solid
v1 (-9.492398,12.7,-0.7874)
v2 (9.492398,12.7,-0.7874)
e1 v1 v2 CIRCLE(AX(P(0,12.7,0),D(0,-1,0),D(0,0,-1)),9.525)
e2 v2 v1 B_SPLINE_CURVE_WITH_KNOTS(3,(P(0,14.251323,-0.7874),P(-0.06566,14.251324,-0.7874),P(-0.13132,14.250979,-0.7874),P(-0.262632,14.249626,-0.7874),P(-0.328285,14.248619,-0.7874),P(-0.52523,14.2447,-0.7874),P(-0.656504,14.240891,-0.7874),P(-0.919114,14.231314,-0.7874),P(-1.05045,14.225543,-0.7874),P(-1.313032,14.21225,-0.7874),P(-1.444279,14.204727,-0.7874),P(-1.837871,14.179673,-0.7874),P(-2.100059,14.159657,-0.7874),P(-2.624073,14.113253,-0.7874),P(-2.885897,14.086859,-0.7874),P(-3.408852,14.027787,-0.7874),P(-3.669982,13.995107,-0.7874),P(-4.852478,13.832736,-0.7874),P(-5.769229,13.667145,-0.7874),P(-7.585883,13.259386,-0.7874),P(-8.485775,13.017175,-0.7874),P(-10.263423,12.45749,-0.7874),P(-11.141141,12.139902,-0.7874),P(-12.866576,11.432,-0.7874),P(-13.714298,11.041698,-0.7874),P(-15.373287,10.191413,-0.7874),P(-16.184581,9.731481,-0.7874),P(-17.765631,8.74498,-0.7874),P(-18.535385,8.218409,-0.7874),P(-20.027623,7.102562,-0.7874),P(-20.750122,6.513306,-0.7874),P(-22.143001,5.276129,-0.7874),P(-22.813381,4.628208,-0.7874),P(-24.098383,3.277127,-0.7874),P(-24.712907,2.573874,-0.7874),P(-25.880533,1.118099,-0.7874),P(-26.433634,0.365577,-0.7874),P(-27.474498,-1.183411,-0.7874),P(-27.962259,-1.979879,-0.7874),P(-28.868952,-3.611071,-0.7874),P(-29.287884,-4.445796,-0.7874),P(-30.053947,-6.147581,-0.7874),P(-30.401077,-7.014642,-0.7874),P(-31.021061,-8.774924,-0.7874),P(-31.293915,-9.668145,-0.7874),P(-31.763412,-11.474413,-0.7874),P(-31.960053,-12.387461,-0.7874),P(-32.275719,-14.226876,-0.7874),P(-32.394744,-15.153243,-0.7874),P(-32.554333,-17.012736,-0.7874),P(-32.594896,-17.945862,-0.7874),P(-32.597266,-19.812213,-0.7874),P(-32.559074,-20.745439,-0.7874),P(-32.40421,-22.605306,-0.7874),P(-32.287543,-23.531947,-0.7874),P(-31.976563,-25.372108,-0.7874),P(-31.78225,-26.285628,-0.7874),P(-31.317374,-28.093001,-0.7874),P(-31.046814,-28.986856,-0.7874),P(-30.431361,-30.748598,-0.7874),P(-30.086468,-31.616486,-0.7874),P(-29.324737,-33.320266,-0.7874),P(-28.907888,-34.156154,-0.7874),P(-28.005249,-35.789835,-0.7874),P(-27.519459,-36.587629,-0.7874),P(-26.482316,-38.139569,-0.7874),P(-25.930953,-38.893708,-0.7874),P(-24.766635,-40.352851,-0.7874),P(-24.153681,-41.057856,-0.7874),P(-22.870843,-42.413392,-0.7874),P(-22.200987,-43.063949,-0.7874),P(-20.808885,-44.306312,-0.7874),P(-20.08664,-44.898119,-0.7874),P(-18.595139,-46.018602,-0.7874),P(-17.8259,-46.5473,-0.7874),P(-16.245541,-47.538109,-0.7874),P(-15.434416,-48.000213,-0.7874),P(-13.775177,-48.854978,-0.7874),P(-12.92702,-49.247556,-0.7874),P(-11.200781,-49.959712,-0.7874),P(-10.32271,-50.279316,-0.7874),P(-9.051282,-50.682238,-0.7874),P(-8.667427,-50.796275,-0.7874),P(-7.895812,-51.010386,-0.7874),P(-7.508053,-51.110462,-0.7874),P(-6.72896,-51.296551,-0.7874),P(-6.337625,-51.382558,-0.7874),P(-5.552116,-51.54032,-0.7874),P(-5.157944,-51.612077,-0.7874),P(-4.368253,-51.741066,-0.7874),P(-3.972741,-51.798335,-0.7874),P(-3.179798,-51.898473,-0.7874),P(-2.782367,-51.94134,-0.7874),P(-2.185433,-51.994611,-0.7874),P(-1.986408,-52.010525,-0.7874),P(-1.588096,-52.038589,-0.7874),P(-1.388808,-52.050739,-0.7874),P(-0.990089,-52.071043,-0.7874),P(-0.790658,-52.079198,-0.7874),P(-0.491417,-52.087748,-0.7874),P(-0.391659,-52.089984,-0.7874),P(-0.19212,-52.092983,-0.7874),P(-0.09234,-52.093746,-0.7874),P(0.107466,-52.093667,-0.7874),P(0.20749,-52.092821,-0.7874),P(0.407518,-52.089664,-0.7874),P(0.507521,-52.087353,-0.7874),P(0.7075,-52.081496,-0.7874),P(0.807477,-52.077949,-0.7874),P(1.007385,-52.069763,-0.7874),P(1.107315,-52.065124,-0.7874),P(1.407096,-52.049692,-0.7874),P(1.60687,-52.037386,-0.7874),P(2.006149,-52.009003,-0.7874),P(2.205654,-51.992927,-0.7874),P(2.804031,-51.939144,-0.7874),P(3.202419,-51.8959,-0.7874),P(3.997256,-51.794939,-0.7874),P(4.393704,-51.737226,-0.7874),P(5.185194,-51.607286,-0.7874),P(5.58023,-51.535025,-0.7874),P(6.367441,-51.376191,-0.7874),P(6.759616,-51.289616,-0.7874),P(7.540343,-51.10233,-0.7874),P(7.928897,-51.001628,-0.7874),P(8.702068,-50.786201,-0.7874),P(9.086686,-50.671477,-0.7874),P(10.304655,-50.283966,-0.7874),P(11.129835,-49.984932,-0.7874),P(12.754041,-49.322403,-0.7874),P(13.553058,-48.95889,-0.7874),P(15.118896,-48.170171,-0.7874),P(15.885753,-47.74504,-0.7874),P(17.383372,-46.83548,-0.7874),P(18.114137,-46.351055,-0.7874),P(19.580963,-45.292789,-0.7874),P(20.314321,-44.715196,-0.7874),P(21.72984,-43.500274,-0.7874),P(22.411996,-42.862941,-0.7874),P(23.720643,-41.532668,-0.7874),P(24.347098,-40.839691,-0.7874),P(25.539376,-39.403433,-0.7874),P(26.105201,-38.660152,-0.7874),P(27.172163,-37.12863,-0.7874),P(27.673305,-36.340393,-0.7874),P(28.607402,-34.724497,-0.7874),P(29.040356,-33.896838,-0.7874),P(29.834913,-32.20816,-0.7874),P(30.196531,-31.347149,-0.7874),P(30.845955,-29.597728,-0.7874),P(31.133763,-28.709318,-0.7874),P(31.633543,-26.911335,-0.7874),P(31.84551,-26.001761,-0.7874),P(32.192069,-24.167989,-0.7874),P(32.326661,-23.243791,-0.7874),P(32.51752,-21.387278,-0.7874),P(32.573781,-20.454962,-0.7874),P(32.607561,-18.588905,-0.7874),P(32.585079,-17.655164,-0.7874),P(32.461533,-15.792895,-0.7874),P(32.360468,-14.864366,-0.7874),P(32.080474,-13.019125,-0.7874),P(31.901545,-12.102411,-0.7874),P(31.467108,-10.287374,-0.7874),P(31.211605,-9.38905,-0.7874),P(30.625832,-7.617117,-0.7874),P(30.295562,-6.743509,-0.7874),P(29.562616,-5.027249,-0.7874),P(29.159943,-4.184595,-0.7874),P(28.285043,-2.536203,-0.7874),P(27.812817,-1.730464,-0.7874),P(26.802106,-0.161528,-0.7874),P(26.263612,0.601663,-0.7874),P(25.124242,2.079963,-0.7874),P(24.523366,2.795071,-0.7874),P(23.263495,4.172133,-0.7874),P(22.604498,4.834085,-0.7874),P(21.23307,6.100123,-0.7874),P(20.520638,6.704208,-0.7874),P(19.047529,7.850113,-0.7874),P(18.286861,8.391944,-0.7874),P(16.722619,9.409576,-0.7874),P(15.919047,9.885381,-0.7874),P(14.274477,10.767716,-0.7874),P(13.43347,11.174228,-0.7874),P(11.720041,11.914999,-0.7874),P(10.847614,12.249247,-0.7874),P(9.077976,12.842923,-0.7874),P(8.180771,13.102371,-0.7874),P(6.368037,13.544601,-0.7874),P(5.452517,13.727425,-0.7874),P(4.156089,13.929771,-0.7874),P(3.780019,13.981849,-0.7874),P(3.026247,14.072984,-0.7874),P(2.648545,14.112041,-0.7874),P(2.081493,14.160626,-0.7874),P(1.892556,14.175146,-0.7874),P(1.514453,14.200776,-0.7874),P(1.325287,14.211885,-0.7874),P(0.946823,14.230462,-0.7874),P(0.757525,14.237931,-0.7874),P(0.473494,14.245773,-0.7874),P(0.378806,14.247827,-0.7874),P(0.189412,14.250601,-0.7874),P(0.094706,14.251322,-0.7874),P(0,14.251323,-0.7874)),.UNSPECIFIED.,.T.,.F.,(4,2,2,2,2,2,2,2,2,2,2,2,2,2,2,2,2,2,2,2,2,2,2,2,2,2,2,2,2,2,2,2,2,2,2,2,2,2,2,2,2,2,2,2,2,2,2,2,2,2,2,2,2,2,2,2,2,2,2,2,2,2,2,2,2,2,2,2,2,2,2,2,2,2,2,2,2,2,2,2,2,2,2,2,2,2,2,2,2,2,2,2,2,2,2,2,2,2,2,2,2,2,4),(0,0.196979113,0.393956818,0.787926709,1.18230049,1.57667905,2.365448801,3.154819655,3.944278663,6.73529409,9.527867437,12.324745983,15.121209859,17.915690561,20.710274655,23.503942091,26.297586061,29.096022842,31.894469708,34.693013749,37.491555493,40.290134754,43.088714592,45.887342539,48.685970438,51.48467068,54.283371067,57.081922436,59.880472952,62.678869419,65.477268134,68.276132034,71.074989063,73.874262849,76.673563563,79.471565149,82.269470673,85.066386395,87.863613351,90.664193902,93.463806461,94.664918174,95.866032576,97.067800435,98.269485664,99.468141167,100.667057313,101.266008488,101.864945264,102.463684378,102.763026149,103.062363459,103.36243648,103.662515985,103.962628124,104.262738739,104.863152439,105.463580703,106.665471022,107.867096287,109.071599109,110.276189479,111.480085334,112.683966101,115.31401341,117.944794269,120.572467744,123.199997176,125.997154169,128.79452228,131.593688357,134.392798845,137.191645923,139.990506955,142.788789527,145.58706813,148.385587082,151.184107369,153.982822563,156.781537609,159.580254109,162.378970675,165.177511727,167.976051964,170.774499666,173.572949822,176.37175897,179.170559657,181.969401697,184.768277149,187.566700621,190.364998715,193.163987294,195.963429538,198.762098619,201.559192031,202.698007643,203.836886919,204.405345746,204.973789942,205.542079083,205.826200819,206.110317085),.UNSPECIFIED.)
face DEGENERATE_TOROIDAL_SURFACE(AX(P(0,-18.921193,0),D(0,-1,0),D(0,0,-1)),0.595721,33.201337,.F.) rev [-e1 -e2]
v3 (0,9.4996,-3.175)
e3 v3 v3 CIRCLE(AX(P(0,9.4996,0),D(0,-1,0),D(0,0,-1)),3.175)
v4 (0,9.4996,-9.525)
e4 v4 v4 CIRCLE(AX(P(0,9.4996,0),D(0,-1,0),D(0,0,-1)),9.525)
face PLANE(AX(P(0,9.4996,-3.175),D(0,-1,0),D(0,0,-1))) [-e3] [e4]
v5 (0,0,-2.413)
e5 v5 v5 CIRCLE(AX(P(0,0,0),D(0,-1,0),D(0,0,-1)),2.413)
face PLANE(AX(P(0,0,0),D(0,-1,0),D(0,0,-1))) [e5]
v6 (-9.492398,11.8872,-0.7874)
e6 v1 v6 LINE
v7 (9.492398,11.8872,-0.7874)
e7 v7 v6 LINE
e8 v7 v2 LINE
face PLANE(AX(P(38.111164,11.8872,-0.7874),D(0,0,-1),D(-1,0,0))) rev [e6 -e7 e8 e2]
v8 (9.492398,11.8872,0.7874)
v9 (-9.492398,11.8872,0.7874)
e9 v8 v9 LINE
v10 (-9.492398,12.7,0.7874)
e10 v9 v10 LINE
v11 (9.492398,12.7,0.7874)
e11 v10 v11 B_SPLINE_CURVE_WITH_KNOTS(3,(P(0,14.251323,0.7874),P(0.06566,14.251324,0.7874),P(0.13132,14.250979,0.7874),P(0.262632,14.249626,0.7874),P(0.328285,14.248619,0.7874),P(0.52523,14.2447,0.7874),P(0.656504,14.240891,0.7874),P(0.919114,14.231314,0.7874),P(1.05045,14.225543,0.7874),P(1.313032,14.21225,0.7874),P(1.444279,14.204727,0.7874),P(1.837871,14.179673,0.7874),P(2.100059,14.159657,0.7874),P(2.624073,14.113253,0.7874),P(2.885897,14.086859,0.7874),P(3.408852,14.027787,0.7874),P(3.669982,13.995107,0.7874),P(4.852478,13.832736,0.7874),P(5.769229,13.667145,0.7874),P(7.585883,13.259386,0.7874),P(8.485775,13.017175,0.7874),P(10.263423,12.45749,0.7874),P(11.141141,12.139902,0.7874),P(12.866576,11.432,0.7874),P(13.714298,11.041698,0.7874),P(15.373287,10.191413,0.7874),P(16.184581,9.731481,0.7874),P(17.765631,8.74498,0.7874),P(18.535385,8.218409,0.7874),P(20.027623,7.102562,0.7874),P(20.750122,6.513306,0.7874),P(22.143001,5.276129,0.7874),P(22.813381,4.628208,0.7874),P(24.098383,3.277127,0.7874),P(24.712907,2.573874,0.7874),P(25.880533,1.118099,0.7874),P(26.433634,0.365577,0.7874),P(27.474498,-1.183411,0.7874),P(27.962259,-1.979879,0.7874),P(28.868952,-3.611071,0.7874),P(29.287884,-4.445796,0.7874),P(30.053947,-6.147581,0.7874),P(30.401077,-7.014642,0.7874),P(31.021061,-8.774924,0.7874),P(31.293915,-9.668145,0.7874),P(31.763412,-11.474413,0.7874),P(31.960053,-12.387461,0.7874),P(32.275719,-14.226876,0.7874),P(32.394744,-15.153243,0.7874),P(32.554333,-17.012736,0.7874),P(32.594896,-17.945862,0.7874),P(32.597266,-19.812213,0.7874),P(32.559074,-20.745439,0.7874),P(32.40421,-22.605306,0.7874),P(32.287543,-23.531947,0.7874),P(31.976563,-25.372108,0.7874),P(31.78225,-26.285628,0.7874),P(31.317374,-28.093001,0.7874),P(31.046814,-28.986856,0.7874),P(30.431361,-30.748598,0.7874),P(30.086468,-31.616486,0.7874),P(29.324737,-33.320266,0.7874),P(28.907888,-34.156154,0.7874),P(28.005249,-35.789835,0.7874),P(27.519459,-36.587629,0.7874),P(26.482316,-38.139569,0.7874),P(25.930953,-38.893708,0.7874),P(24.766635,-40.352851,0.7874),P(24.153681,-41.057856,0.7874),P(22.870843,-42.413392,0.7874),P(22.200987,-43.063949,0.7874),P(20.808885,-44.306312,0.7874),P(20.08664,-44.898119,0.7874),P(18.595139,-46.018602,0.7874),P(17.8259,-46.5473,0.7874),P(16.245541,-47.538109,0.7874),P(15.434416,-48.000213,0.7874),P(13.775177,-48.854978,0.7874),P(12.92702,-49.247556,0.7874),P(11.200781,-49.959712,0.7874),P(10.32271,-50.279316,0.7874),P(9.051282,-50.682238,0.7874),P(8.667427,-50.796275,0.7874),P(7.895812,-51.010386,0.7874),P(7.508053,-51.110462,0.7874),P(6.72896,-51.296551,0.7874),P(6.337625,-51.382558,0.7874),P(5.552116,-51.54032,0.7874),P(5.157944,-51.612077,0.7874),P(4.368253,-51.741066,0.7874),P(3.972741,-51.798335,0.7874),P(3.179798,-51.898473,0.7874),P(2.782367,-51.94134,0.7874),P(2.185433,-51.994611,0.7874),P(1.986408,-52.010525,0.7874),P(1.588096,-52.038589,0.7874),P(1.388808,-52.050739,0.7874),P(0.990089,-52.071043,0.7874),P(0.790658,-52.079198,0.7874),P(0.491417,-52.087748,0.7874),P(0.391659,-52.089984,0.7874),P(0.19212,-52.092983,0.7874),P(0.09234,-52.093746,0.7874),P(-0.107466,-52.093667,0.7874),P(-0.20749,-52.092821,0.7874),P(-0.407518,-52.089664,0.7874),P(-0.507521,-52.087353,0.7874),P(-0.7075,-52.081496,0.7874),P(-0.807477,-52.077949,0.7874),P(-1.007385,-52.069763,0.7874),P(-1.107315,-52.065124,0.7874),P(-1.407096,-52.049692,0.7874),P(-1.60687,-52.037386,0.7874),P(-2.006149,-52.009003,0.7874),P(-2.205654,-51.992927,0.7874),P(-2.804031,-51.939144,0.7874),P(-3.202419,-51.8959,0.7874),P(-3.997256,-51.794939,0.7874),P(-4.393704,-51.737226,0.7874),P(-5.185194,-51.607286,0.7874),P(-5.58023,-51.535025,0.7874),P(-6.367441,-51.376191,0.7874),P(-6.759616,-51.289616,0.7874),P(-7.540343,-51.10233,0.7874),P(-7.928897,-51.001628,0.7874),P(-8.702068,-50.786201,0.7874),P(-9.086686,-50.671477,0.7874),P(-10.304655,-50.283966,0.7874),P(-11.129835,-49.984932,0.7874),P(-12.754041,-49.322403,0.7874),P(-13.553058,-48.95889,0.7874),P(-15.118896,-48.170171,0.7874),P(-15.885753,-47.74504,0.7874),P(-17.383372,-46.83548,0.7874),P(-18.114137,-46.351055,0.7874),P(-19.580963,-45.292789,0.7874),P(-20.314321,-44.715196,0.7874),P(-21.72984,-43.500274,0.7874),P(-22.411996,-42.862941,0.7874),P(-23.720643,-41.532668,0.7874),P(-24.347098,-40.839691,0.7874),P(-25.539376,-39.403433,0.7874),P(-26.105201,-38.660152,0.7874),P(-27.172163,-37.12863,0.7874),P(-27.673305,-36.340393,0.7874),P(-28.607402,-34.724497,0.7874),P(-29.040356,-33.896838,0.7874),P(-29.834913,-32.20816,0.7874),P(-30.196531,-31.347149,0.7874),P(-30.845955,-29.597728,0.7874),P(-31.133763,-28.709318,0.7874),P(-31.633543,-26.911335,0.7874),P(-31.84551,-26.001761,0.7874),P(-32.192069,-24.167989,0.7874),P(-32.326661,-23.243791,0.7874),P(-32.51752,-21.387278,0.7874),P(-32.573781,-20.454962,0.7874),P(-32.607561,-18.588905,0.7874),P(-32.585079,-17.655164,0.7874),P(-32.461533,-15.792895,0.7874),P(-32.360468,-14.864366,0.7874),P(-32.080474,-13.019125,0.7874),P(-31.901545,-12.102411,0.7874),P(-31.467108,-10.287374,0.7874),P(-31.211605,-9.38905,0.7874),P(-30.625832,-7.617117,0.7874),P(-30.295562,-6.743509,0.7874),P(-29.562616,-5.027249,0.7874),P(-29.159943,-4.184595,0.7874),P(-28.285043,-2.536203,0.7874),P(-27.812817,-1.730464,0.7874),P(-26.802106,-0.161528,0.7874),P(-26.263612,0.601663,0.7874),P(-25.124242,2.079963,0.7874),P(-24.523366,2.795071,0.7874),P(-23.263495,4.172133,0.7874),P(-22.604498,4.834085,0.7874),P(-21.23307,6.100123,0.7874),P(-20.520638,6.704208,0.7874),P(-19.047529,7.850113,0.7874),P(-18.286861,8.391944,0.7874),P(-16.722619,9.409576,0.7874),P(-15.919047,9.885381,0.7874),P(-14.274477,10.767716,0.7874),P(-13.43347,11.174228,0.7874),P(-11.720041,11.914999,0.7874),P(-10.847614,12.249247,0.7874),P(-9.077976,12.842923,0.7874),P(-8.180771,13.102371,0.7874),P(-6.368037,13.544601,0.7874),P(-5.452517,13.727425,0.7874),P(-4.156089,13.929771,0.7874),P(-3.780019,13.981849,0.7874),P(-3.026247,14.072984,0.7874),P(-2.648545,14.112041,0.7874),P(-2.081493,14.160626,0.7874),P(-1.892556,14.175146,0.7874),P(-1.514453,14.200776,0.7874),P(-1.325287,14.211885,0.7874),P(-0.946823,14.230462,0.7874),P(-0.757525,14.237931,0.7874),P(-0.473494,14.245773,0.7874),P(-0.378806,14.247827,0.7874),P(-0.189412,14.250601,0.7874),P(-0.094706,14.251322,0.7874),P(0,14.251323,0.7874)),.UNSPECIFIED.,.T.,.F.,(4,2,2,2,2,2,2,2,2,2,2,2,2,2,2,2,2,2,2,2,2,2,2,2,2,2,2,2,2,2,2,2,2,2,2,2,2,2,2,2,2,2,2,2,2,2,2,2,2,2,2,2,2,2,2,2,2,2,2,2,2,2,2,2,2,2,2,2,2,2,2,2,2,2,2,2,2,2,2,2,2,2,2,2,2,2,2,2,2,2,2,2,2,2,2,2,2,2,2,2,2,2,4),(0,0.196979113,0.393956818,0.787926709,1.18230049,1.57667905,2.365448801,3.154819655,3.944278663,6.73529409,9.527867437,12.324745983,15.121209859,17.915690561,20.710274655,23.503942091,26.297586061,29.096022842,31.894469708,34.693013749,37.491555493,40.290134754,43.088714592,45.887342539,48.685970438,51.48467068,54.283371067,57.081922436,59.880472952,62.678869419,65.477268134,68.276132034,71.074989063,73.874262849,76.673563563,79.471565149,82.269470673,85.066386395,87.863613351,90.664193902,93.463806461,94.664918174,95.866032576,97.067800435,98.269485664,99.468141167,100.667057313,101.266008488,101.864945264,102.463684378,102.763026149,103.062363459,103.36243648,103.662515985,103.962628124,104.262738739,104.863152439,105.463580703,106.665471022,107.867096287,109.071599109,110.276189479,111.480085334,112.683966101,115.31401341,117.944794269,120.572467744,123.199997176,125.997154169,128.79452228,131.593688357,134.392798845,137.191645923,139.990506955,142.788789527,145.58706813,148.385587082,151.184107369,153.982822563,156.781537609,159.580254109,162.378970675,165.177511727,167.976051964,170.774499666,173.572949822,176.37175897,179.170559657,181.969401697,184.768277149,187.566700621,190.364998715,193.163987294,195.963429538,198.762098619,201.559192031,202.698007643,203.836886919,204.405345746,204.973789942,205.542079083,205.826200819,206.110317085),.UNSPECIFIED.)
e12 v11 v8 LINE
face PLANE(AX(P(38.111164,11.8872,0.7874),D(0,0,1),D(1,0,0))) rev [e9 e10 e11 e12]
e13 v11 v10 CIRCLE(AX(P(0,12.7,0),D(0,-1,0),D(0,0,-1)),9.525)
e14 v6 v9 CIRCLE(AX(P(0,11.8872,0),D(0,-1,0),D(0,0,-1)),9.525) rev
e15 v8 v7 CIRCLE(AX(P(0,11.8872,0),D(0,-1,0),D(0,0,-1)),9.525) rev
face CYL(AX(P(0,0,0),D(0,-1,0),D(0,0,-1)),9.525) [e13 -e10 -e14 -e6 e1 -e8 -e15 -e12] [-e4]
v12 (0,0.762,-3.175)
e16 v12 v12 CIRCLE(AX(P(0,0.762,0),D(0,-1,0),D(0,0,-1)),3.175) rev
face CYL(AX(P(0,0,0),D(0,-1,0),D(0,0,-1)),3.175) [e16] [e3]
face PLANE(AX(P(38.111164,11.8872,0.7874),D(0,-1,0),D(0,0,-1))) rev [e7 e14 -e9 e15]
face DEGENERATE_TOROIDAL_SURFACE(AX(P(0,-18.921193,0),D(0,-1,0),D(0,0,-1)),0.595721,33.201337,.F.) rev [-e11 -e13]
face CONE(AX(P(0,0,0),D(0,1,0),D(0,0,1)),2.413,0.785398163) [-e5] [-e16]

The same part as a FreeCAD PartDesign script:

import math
import FreeCAD as App
import Part
import Sketcher
from FreeCAD import Vector
Q = App.Units.Quantity


def edges_at(feature, points):
    """Names of the edges that pass closest to the given points."""
    edges = feature.Shape.Edges
    near = lambda p: min(range(len(edges)), key=lambda i: edges[i].distToShape(Part.Vertex(*p))[0])
    return sorted({f"Edge{near(p) + 1}" for p in points})

doc = App.newDocument("Part")
body = doc.addObject("PartDesign::Body", "Body")

sketch1 = body.newObject("Sketcher::SketchObject", "Sketch")
sketch1.AttachmentSupport = (doc.getObject("YZ_Plane"), [""])
sketch1.MapMode = "FlatFace"
sketch1.addGeometry(Part.LineSegment(Vector(0, 0, 0), Vector(0, -3.2, 0)), False)
sketch1.addGeometry(Part.LineSegment(Vector(0, -3.2, 0), Vector(9.5, -3.2, 0)), False)
sketch1.addGeometry(Part.LineSegment(Vector(9.5, -3.2, 0), Vector(9.5, -9.5, 0)), False)
sketch1.addGeometry(Part.LineSegment(Vector(9.5, -9.5, 0), Vector(12.7, -9.5, 0)), False)
sketch1.addGeometry(Part.ArcOfCircle(Part.Circle(Vector(-18.9, 0.6, 0), Vector(0, 0, 1), 33.2), math.radians(-17.75), math.radians(-1.03)), False)
sketch1.addGeometry(Part.LineSegment(Vector(14.3, 0, 0), Vector(0, 0, 0)), False)
sketch1.addConstraint(Sketcher.Constraint("Coincident", 0, 2, 1, 1))
sketch1.addConstraint(Sketcher.Constraint("Coincident", 1, 2, 2, 1))
sketch1.addConstraint(Sketcher.Constraint("Coincident", 2, 2, 3, 1))
sketch1.addConstraint(Sketcher.Constraint("Coincident", 3, 2, 4, 1))
sketch1.addConstraint(Sketcher.Constraint("Coincident", 4, 2, 5, 1))
sketch1.addConstraint(Sketcher.Constraint("Coincident", 5, 2, 0, 1))
sketch1.addConstraint(Sketcher.Constraint("Vertical", 0))
sketch1.addConstraint(Sketcher.Constraint("Horizontal", 1))
sketch1.addConstraint(Sketcher.Constraint("Vertical", 2))
sketch1.addConstraint(Sketcher.Constraint("Horizontal", 3))
sketch1.addConstraint(Sketcher.Constraint("Horizontal", 5))
sketch1.addConstraint(Sketcher.Constraint("Coincident", 5, 2, -1, 1))
sketch1.addConstraint(Sketcher.Constraint("DistanceY", 2, 2, 2, 1, Q("0.25 in")))
sketch1.addConstraint(Sketcher.Constraint("DistanceX", -1, 1, 3, 2, Q("0.5 in")))
sketch1.addConstraint(Sketcher.Constraint("DistanceX", 1, 1, 1, 2, Q("0.374 in")))
sketch1.addConstraint(Sketcher.Constraint("DistanceX", 5, 2, 5, 1, Q("0.562 in")))
sketch1.addConstraint(Sketcher.Constraint("DistanceY", 0, 2, 0, 1, Q("0.125 in")))
sketch1.addConstraint(Sketcher.Constraint("Radius", 4, 33.201337))
revolution = body.newObject("PartDesign::Revolution", "Revolution")
revolution.Profile = sketch1
revolution.ReferenceAxis = (sketch1, ["H_Axis"])
revolution.Angle = 360

sketch2 = body.newObject("Sketcher::SketchObject", "Sketch001")
sketch2.AttachmentSupport = (doc.getObject("YZ_Plane"), [""])
sketch2.MapMode = "FlatFace"
sketch2.addGeometry(Part.LineSegment(Vector(11.9, 0.8, 0), Vector(11.9, -0.8, 0)), False)
sketch2.addGeometry(Part.LineSegment(Vector(11.9, -0.8, 0), Vector(149.8, -0.8, 0)), False)
sketch2.addGeometry(Part.LineSegment(Vector(149.8, -0.8, 0), Vector(149.8, 0.8, 0)), False)
sketch2.addGeometry(Part.LineSegment(Vector(149.8, 0.8, 0), Vector(11.9, 0.8, 0)), False)
sketch2.addConstraint(Sketcher.Constraint("Coincident", 0, 2, 1, 1))
sketch2.addConstraint(Sketcher.Constraint("Coincident", 1, 2, 2, 1))
sketch2.addConstraint(Sketcher.Constraint("Coincident", 2, 2, 3, 1))
sketch2.addConstraint(Sketcher.Constraint("Coincident", 3, 2, 0, 1))
sketch2.addConstraint(Sketcher.Constraint("Vertical", 0))
sketch2.addConstraint(Sketcher.Constraint("Horizontal", 1))
sketch2.addConstraint(Sketcher.Constraint("Vertical", 2))
sketch2.addConstraint(Sketcher.Constraint("Horizontal", 3))
sketch2.addConstraint(Sketcher.Constraint("DistanceY", 0, 2, 0, 1, Q("0.062 in")))
sketch2.addConstraint(Sketcher.Constraint("DistanceX", -1, 1, 0, 2, Q("0.468 in")))
sketch2.addConstraint(Sketcher.Constraint("DistanceY", 0, 2, -1, 1, Q("0.031 in")))
sketch2.addConstraint(Sketcher.Constraint("DistanceX", 1, 1, 1, 2, 137.910553))
pocket1 = body.newObject("PartDesign::Pocket", "Pocket")
pocket1.Profile = sketch2
pocket1.Type = "ThroughAll"
pocket1.Midplane = True
doc.recompute()

chamfer = body.newObject("PartDesign::Chamfer", "Chamfer")
chamfer.Base = (pocket1, edges_at(pocket1, [(0, 0, 3.175)]))
chamfer.Size = Q("0.03 in")

doc.recompute()
